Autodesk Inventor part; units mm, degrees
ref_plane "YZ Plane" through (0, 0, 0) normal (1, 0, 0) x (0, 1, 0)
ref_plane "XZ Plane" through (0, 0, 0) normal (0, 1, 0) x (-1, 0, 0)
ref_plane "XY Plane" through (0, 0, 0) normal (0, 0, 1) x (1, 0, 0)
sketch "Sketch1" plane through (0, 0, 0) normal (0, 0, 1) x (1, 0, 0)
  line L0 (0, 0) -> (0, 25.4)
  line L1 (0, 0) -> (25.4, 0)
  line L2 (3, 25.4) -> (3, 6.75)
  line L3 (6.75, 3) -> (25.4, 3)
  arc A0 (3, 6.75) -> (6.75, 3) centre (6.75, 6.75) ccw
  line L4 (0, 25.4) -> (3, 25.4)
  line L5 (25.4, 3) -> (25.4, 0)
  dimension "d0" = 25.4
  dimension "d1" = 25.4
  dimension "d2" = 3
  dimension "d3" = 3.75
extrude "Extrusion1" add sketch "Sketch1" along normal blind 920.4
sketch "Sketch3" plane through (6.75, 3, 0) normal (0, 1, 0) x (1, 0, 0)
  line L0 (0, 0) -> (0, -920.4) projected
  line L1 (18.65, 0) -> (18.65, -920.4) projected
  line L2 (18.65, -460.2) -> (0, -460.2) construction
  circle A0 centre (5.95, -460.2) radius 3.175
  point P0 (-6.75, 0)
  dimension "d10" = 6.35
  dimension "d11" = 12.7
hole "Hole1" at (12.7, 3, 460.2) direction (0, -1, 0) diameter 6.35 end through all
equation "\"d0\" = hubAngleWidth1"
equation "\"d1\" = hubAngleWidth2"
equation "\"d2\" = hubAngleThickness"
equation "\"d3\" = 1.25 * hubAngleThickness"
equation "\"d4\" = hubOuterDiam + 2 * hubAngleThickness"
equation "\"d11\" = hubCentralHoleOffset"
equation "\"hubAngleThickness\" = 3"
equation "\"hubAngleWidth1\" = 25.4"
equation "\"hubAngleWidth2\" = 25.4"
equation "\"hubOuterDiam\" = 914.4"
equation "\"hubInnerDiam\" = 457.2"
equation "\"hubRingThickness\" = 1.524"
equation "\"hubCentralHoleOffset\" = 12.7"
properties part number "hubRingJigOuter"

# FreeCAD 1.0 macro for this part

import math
import FreeCAD as App
import Part
import Sketcher

V = App.Vector
Q = App.Units.Quantity

doc = App.newDocument("Part")
body = doc.addObject("PartDesign::Body", "Body")

# Sketch on XY plane
sketch1 = body.newObject("Sketcher::SketchObject", "Sketch")
sketch1.AttachmentSupport = (doc.getObject("XY_Plane"), [""])
sketch1.MapMode = "FlatFace"
sketch1.addGeometry([
    Part.LineSegment(V(0, 25.4, 0), V(0, 0, 0)),  # 0
    Part.LineSegment(V(0, 0, 0), V(25.4, 0, 0)),  # 1
    Part.LineSegment(V(25.4, 0, 0), V(25.4, 3, 0)),  # 2
    Part.LineSegment(V(25.4, 3, 0), V(6.8, 3, 0)),  # 3
    Part.ArcOfCircle(Part.Circle(V(6.8, 6.8, 0), V(0, 0, 1), 3.8), math.radians(180), math.radians(270)),  # 4
    Part.LineSegment(V(3, 6.8, 0), V(3, 25.4, 0)),  # 5
    Part.LineSegment(V(3, 25.4, 0), V(0, 25.4, 0)),  # 6
], False)
sketch1.addConstraint([
    Sketcher.Constraint("Coincident", 0, 2, 1, 1),
    Sketcher.Constraint("Coincident", 1, 2, 2, 1),
    Sketcher.Constraint("Coincident", 2, 2, 3, 1),
    Sketcher.Constraint("Tangent", 3, 2, 4, 2),
    Sketcher.Constraint("Tangent", 4, 1, 5, 1),
    Sketcher.Constraint("Coincident", 5, 2, 6, 1),
    Sketcher.Constraint("Coincident", 6, 2, 0, 1),
    Sketcher.Constraint("Vertical", 0),
    Sketcher.Constraint("Horizontal", 1),
    Sketcher.Constraint("Vertical", 2),
    Sketcher.Constraint("Horizontal", 3),
    Sketcher.Constraint("Vertical", 5),
    Sketcher.Constraint("Horizontal", 6),
    Sketcher.Constraint("Coincident", 0, 2, -1, 1),
    Sketcher.Constraint("Equal", 1, 0),
    Sketcher.Constraint("Equal", 6, 2),
    Sketcher.Constraint("DistanceX", 6, 2, 6, 1, Q("3 mm")),
    Sketcher.Constraint("Radius", 4, Q("3.75 mm")),
    Sketcher.Constraint("DistanceX", 1, 1, 1, 2, Q("25.4 mm")),
])
pad1 = body.newObject("PartDesign::Pad", "Pad")
pad1.Profile = sketch1
pad1.Length = 920.4

# Sketch on XZ plane
sketch2 = body.newObject("Sketcher::SketchObject", "Sketch001")
sketch2.AttachmentSupport = (doc.getObject("XZ_Plane"), [""])
sketch2.MapMode = "FlatFace"
sketch2.AttachmentOffset = App.Placement(V(0, 0, -3), App.Rotation())
sketch2.addGeometry(Part.Circle(V(12.7, 460.2, 0), V(0, 0, 1), 3.2), False)
sketch2.addConstraint([
    Sketcher.Constraint("Diameter", 0, Q("6.35 mm")),
    Sketcher.Constraint("DistanceX", -1, 1, 0, 3, Q("12.7 mm")),
    Sketcher.Constraint("DistanceY", -1, 1, 0, 3, Q("460.2 mm")),
])
doc.recompute()
hole = body.newObject("PartDesign::Hole", "Hole")
hole.Profile = sketch2
hole.ThreadType = "None"
hole.Diameter = 6.35
hole.DepthType = "ThroughAll"
hole.Reversed = True

doc.recompute()
